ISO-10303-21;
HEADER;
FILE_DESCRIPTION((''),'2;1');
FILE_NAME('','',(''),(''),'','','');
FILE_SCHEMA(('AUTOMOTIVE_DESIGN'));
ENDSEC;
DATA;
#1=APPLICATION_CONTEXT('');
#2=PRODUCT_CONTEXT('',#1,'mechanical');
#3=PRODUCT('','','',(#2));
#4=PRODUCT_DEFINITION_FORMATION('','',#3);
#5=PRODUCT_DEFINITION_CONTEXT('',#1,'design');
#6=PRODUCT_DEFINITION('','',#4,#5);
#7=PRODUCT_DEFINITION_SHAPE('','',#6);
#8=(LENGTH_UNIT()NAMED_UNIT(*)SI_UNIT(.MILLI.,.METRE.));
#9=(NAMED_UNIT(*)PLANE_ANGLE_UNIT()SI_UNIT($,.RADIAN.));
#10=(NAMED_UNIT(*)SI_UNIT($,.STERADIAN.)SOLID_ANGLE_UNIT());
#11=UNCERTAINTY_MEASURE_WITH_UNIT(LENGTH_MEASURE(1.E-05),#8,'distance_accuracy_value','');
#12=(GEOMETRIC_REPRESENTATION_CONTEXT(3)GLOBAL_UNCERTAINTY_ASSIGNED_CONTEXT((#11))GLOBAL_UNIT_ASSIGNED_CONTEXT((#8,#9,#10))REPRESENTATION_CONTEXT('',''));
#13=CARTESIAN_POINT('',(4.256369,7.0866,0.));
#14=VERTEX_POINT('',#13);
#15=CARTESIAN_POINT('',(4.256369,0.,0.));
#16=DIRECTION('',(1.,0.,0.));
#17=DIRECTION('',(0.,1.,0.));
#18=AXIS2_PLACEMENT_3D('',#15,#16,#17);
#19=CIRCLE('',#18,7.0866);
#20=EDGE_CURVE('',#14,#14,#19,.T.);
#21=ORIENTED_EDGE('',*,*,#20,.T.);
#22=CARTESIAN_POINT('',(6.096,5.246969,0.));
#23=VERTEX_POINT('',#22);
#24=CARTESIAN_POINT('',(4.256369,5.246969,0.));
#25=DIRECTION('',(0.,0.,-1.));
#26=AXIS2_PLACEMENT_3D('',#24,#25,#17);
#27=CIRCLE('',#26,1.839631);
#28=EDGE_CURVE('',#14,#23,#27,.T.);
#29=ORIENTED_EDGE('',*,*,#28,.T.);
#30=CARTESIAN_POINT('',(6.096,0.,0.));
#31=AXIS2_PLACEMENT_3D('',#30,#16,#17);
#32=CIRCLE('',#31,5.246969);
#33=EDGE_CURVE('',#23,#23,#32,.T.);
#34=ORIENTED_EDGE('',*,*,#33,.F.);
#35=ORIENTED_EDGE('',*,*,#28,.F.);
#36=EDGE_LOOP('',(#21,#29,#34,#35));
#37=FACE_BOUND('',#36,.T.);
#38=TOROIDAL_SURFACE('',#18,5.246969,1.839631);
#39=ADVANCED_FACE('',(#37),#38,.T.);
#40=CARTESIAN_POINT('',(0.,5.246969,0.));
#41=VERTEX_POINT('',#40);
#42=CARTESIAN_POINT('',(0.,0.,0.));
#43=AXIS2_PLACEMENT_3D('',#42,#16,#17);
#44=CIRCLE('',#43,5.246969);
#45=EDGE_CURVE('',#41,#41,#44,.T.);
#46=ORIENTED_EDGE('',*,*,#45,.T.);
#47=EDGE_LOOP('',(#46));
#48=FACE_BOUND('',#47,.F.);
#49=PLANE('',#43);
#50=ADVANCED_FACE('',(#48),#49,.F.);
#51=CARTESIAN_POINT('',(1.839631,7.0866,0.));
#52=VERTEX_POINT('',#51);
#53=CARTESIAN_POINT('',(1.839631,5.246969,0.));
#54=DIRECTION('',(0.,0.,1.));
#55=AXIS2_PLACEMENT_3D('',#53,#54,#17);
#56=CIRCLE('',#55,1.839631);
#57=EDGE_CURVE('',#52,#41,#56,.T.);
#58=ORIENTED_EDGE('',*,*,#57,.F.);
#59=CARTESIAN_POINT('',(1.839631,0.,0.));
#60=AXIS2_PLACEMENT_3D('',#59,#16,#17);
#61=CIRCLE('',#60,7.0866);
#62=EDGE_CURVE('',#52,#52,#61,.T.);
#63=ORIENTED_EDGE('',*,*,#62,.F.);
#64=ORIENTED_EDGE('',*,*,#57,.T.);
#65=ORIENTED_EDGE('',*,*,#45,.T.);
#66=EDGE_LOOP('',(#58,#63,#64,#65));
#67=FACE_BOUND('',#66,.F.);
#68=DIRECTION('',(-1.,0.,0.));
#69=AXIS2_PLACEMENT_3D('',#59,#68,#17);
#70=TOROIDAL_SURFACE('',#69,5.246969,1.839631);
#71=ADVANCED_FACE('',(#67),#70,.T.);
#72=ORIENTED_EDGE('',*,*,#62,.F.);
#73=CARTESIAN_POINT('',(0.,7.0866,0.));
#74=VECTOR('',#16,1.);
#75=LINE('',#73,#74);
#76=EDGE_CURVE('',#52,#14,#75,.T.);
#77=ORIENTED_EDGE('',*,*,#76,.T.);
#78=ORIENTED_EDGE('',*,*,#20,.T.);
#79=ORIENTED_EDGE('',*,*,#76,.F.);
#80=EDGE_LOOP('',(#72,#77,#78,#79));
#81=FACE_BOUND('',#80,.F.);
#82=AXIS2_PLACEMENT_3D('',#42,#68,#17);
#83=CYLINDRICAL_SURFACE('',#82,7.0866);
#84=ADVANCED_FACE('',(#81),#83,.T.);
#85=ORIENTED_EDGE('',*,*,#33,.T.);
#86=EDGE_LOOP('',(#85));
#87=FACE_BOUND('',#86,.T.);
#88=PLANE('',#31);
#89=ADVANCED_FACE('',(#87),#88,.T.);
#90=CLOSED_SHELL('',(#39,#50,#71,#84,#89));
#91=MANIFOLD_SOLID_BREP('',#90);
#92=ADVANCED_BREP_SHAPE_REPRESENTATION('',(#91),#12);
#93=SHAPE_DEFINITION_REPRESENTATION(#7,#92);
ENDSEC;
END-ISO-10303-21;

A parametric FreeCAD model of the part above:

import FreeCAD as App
import Part
import Sketcher

V = App.Vector
Q = App.Units.Quantity

doc = App.newDocument("Part")
params = doc.addObject("Spreadsheet::Sheet", "Params")
for row, (alias, value) in enumerate([
    ("sketch1_diameter", "0.558 in"),
    ("pad1_length", "0.24 in"),
    ("fillet_radius", "1.839631 mm"),
], start=1):
    params.set(f"A{row}", alias)
    params.set(f"B{row}", "=" + value)
    params.setAlias(f"B{row}", alias)

body = doc.addObject("PartDesign::Body", "Body")

# Sketch on YZ plane
sketch1 = body.newObject("Sketcher::SketchObject", "Sketch")
sketch1.AttachmentSupport = (doc.getObject("YZ_Plane"), [""])
sketch1.MapMode = "FlatFace"
sketch1.addGeometry(Part.Circle(V(0, 0, 0), V(0, 0, 1), 7), False)
sketch1.addConstraint([
    Sketcher.Constraint("Coincident", 0, 3, -1, 1),
    Sketcher.Constraint("Diameter", 0, Q("0.558 in")),
])
sketch1.setExpression("Constraints[1]", "Params.sketch1_diameter")
pad1 = body.newObject("PartDesign::Pad", "Pad")
pad1.Profile = sketch1
pad1.setExpression("Length", "Params.pad1_length")
doc.recompute()

fillet = body.newObject("PartDesign::Fillet", "Fillet")
fillet.Base = (pad1, ["Edge1"])
fillet.UseAllEdges = True
fillet.setExpression("Radius", "Params.fillet_radius")

doc.recompute()
